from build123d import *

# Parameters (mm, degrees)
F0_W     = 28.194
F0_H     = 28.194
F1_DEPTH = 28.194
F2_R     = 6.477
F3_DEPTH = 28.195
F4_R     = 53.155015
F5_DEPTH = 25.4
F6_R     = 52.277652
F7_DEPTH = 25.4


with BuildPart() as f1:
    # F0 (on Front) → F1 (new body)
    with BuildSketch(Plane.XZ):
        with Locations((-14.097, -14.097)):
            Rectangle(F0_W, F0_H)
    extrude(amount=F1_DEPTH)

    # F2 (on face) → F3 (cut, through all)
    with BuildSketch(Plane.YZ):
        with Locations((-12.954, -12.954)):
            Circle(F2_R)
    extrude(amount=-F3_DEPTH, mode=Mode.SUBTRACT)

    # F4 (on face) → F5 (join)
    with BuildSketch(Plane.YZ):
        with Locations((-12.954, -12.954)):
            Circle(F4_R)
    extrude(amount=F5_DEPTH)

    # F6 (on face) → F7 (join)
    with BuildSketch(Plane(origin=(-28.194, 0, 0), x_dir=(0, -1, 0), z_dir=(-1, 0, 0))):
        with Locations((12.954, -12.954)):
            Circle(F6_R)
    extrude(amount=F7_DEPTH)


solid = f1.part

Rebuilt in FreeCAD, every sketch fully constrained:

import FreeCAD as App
import Part
import Sketcher
Q = App.Units.Quantity

doc = App.newDocument("Part")
params = doc.addObject("Spreadsheet::Sheet", "Params")
for row, (alias, value) in enumerate([
    ("sketch1_width", "1.11 in"),
    ("pad1_length", "1.11 in"),
    ("sketch2_diameter", "0.51 in"),
    ("pad2_length", "1 in"),
    ("pad3_length", "1 in"),
], start=1):
    params.set(f"A{row}", alias)
    params.set(f"B{row}", "=" + value)
    params.setAlias(f"B{row}", alias)

body = doc.addObject("PartDesign::Body", "Body")

# Sketch on XZ plane
sketch1 = body.newObject("Sketcher::SketchObject", "Sketch")
sketch1.AttachmentSupport = (doc.getObject("XZ_Plane"), [""])
sketch1.MapMode = "FlatFace"
sketch1.addGeometry([
    Part.LineSegment(App.Vector(-28, 0, 0), App.Vector(-28, -28, 0)),
    Part.LineSegment(App.Vector(-28, -28, 0), App.Vector(0, -28, 0)),
    Part.LineSegment(App.Vector(0, -28, 0), App.Vector(0, 0, 0)),
    Part.LineSegment(App.Vector(0, 0, 0), App.Vector(-28, 0, 0)),
], False)
sketch1.addConstraint([
    Sketcher.Constraint("Coincident", 0, 2, 1, 1),
    Sketcher.Constraint("Coincident", 1, 2, 2, 1),
    Sketcher.Constraint("Coincident", 2, 2, 3, 1),
    Sketcher.Constraint("Coincident", 3, 2, 0, 1),
    Sketcher.Constraint("Vertical", 0),
    Sketcher.Constraint("Horizontal", 1),
    Sketcher.Constraint("Vertical", 2),
    Sketcher.Constraint("Horizontal", 3),
    Sketcher.Constraint("Coincident", 2, 2, -1, 1),
    Sketcher.Constraint("Equal", 3, 0),
    Sketcher.Constraint("DistanceX", 1, 1, 1, 2, Q("1.11 in")),
])
sketch1.setExpression("Constraints[10]", "Params.sketch1_width")
pad1 = body.newObject("PartDesign::Pad", "Pad")
pad1.Profile = sketch1
pad1.setExpression("Length", "Params.pad1_length")

# Sketch on YZ plane
sketch2 = body.newObject("Sketcher::SketchObject", "Sketch001")
sketch2.AttachmentSupport = (doc.getObject("YZ_Plane"), [""])
sketch2.MapMode = "FlatFace"
sketch2.addGeometry(Part.Circle(App.Vector(-13, -13, 0), App.Vector(0, 0, 1), 6), False)
sketch2.addConstraint([
    Sketcher.Constraint("Diameter", 0, Q("0.51 in")),
    Sketcher.Constraint("DistanceX", 0, 3, -1, 1, Q("0.51 in")),
    Sketcher.Constraint("DistanceY", 0, 3, -1, 1, Q("0.51 in")),
])
sketch2.setExpression("Constraints[0]", "Params.sketch2_diameter")
pocket1 = body.newObject("PartDesign::Pocket", "Pocket")
pocket1.Profile = sketch2
pocket1.Type = "ThroughAll"

# Sketch on YZ plane
sketch3 = body.newObject("Sketcher::SketchObject", "Sketch002")
sketch3.AttachmentSupport = (doc.getObject("YZ_Plane"), [""])
sketch3.MapMode = "FlatFace"
sketch3.addGeometry(Part.Circle(App.Vector(-13, -13, 0), App.Vector(0, 0, 1), 53), False)
sketch3.addConstraint([
    Sketcher.Constraint("DistanceX", 0, 3, -1, 1, Q("0.51 in")),
    Sketcher.Constraint("DistanceY", 0, 3, -1, 1, Q("0.51 in")),
    Sketcher.Constraint("Diameter", 0, 106.31003),
])
pad2 = body.newObject("PartDesign::Pad", "Pad001")
pad2.Profile = sketch3
pad2.setExpression("Length", "Params.pad2_length")

# Sketch on YZ plane
sketch4 = body.newObject("Sketcher::SketchObject", "Sketch003")
sketch4.AttachmentSupport = (doc.getObject("YZ_Plane"), [""])
sketch4.MapMode = "FlatFace"
sketch4.AttachmentOffset = App.Placement(App.Vector(0, 0, -1.11 * 25.4), App.Rotation())
sketch4.addGeometry(Part.Circle(App.Vector(-13, -13, 0), App.Vector(0, 0, 1), 52), False)
sketch4.addConstraint([
    Sketcher.Constraint("DistanceX", 0, 3, -1, 1, Q("0.51 in")),
    Sketcher.Constraint("DistanceY", 0, 3, -1, 1, Q("0.51 in")),
    Sketcher.Constraint("Diameter", 0, 104.555304),
])
pad3 = body.newObject("PartDesign::Pad", "Pad002")
pad3.Profile = sketch4
pad3.setExpression("Length", "Params.pad3_length")
pad3.Reversed = True

doc.recompute()
